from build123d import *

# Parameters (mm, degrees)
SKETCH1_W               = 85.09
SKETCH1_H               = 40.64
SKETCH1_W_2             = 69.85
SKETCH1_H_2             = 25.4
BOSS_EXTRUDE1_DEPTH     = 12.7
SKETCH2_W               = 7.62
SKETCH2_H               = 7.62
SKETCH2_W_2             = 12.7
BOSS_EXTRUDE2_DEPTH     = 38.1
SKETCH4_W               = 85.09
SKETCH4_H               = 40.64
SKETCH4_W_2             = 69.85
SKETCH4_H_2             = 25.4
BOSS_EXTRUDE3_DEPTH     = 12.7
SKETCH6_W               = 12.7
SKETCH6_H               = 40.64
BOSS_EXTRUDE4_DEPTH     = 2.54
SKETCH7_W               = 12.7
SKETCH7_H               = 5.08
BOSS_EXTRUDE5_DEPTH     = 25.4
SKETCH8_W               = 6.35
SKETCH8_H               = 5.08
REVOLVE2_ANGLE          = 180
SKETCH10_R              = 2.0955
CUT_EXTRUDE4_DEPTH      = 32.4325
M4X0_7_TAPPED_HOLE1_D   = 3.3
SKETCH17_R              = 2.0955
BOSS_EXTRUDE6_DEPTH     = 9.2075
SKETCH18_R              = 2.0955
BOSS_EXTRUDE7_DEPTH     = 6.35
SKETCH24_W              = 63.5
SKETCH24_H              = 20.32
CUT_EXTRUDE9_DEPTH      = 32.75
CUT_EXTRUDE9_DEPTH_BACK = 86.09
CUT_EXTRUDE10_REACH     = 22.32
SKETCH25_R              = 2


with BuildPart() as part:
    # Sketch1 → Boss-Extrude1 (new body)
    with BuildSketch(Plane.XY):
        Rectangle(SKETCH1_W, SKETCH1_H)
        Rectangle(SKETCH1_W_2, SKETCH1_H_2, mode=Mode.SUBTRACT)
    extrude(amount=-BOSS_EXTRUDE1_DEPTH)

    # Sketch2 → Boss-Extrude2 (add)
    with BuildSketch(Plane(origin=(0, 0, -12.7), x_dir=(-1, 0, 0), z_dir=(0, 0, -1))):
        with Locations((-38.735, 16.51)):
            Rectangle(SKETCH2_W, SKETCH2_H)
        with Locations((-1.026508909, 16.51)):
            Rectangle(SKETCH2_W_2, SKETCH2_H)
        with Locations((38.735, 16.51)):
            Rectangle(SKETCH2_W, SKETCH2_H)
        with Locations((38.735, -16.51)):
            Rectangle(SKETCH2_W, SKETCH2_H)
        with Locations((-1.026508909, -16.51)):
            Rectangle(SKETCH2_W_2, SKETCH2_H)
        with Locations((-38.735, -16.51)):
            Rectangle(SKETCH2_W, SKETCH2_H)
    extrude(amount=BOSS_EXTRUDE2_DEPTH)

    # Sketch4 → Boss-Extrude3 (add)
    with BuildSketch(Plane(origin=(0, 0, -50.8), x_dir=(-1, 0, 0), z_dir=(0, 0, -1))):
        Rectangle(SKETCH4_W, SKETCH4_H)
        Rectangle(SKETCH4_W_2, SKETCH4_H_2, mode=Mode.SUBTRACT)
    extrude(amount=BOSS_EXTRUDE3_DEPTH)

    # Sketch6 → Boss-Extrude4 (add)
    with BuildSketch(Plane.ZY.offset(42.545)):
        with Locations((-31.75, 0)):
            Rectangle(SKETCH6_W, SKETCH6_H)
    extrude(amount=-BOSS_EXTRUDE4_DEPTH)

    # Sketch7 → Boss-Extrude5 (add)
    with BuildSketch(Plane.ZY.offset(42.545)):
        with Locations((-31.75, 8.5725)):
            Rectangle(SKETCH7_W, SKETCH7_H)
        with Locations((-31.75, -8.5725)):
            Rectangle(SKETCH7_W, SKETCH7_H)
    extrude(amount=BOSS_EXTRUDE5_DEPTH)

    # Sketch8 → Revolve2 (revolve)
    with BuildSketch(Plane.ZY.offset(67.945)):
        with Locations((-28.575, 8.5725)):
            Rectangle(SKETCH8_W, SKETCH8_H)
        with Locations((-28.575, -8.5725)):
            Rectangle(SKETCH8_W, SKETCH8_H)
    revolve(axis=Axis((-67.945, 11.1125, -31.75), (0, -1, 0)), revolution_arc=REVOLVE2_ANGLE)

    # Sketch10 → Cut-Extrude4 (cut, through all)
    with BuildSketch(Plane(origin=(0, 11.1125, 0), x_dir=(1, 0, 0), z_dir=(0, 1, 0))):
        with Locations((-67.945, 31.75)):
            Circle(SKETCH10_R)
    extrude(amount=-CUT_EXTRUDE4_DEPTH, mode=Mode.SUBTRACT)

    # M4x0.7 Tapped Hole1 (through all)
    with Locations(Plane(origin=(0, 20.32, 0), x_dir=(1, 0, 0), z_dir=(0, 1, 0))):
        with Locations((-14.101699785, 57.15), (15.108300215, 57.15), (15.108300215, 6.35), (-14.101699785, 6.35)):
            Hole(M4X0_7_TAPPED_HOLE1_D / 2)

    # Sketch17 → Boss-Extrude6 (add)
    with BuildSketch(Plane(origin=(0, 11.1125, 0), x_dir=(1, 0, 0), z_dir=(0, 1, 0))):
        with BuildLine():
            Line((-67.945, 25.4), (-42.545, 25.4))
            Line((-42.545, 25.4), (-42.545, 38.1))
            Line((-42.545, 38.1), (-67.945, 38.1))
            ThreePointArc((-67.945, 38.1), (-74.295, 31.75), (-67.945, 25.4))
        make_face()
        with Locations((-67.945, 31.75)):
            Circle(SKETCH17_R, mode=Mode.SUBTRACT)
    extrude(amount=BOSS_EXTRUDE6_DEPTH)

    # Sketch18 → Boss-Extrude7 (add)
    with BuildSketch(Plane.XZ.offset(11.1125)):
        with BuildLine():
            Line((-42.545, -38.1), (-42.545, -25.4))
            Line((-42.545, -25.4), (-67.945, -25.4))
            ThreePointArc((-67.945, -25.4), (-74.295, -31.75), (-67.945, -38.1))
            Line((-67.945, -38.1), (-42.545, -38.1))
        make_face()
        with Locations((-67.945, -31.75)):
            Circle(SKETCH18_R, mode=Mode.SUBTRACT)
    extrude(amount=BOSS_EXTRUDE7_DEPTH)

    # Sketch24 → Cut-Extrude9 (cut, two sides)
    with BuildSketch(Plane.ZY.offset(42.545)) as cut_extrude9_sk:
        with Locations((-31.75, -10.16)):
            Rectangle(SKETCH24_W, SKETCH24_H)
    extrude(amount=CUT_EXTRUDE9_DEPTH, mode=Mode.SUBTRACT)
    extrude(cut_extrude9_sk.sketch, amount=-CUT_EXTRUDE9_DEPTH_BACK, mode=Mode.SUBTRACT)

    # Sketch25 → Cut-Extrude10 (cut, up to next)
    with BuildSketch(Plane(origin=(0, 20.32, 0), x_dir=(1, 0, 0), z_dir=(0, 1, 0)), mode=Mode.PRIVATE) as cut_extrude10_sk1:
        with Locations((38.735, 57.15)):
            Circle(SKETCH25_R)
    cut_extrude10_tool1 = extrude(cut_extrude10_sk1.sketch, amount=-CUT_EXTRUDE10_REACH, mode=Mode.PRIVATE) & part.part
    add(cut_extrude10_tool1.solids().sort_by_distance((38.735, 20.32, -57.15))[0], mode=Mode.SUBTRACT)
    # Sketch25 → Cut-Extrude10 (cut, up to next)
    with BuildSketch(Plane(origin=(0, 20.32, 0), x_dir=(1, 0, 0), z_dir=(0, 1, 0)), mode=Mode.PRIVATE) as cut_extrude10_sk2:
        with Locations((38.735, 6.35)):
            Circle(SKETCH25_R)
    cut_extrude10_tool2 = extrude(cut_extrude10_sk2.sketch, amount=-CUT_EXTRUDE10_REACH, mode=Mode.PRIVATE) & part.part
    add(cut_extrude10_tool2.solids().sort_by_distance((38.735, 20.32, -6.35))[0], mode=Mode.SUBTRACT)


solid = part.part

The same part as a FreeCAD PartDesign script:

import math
import FreeCAD as App
import Part
import Sketcher
from FreeCAD import Vector
Q = App.Units.Quantity


def add_polygon(sketch, points):
    """Adds a closed chain of lines whose ends are joined by coincident constraints."""
    first, n = sketch.GeometryCount, len(points)
    for a, b in zip(points, points[1:] + points[:1]):
        sketch.addGeometry(Part.LineSegment(App.Vector(*a, 0), App.Vector(*b, 0)), False)
    for i in range(n):
        sketch.addConstraint(Sketcher.Constraint("Coincident", first + i, 2, first + (i + 1) % n, 1))

doc = App.newDocument("Part")
body = doc.addObject("PartDesign::Body", "Body")

# Sketch on XY plane
sketch1 = doc.addObject("Sketcher::SketchObject", "Sketch")
body.addObject(sketch1)
sketch1.AttachmentSupport = (doc.XY_Plane, [""])
sketch1.MapMode = "FlatFace"
add_polygon(sketch1, [(-42.545, 20.32), (-42.545, -20.32), (42.545, -20.32), (42.545, 20.32)])  # lines 0-3
add_polygon(sketch1, [(34.925, -12.7), (-34.925, -12.7), (-34.925, 12.7), (34.925, 12.7)])  # lines 4-7
sketch1.addConstraint([
    Sketcher.Constraint("Vertical", 0),
    Sketcher.Constraint("Horizontal", 1),
    Sketcher.Constraint("Vertical", 2),
    Sketcher.Constraint("Horizontal", 3),
    Sketcher.Constraint("Horizontal", 4),
    Sketcher.Constraint("Vertical", 5),
    Sketcher.Constraint("Horizontal", 6),
    Sketcher.Constraint("Vertical", 7),
    Sketcher.Constraint("Symmetric", 0, 2, 2, 2, -1, 1),
    Sketcher.Constraint("Symmetric", 4, 2, 6, 2, -1, 1),
    Sketcher.Constraint("DistanceY", 5, 1, 5, 2, Q("1 in")),
    Sketcher.Constraint("DistanceY", 0, 2, 0, 1, Q("1.6 in")),
    Sketcher.Constraint("DistanceX", 1, 1, 1, 2, Q("3.35 in")),
    Sketcher.Constraint("DistanceX", 4, 2, 4, 1, Q("2.75 in")),
])
pad1 = doc.addObject("PartDesign::Pad", "Pad")
body.addObject(pad1)
pad1.Profile = sketch1
pad1.Length = Q("0.5 in")
pad1.Reversed = True

# Sketch on XY plane
sketch2 = doc.addObject("Sketcher::SketchObject", "Sketch001")
body.addObject(sketch2)
sketch2.AttachmentSupport = (doc.XY_Plane, [""])
sketch2.MapMode = "FlatFace"
sketch2.AttachmentOffset = App.Placement(Vector(0, 0, -0.5 * 25.4), App.Rotation())
add_polygon(sketch2, [(42.545, 20.32), (42.545, 12.7), (34.925, 12.7), (34.925, 20.32)])  # lines 0-3
add_polygon(sketch2, [(7.376509, 20.32), (7.376509, 12.7), (-5.323491, 12.7), (-5.323491, 20.32)])  # lines 4-7
add_polygon(sketch2, [(-34.925, 20.32), (-34.925, 12.7), (-42.545, 12.7), (-42.545, 20.32)])  # lines 8-11
add_polygon(sketch2, [(-34.925, -12.7), (-34.925, -20.32), (-42.545, -20.32), (-42.545, -12.7)])  # lines 12-15
add_polygon(sketch2, [(7.376509, -12.7), (7.376509, -20.32), (-5.323491, -20.32), (-5.323491, -12.7)])  # lines 16-19
add_polygon(sketch2, [(42.545, -12.7), (42.545, -20.32), (34.925, -20.32), (34.925, -12.7)])  # lines 20-23
sketch2.addConstraint([
    Sketcher.Constraint("Vertical", 0),
    Sketcher.Constraint("Horizontal", 1),
    Sketcher.Constraint("Vertical", 2),
    Sketcher.Constraint("Horizontal", 3),
    Sketcher.Constraint("Vertical", 4),
    Sketcher.Constraint("Horizontal", 5),
    Sketcher.Constraint("Vertical", 6),
    Sketcher.Constraint("Horizontal", 7),
    Sketcher.Constraint("Vertical", 8),
    Sketcher.Constraint("Horizontal", 9),
    Sketcher.Constraint("Vertical", 10),
    Sketcher.Constraint("Horizontal", 11),
    Sketcher.Constraint("Vertical", 12),
    Sketcher.Constraint("Horizontal", 13),
    Sketcher.Constraint("Vertical", 14),
    Sketcher.Constraint("Horizontal", 15),
    Sketcher.Constraint("Vertical", 16),
    Sketcher.Constraint("Horizontal", 17),
    Sketcher.Constraint("Vertical", 18),
    Sketcher.Constraint("Horizontal", 19),
    Sketcher.Constraint("Vertical", 20),
    Sketcher.Constraint("Horizontal", 21),
    Sketcher.Constraint("Vertical", 22),
    Sketcher.Constraint("Horizontal", 23),
    Sketcher.Constraint("Symmetric", 2, 2, 12, 2, -1, 1),
    Sketcher.Constraint("Symmetric", 0, 2, 14, 2, -1, 1),
    Sketcher.Constraint("Symmetric", 10, 2, 20, 2, -1, 1),
    Sketcher.Constraint("Symmetric", 8, 2, 22, 2, -1, 1),
    Sketcher.Constraint("Symmetric", 1, 2, 8, 2, -2),
    Sketcher.Constraint("Symmetric", 3, 2, 10, 2, -2),
    Sketcher.Constraint("Symmetric", 7, 2, 16, 2, -1),
    Sketcher.Constraint("Symmetric", 5, 2, 18, 2, -1),
    Sketcher.Constraint("Horizontal", 1, 2, 4, 2),
    Sketcher.Constraint("Horizontal", 3, 2, 6, 2),
    Sketcher.Constraint("Equal", 23, 0),
    Sketcher.Constraint("DistanceX", 1, 2, 1, 1, Q("0.3 in")),
    Sketcher.Constraint("DistanceX", 5, 2, 5, 1, Q("0.5 in")),
    Sketcher.Constraint("DistanceY", 14, 2, 9, 2, Q("1 in")),
    Sketcher.Constraint("DistanceX", 8, 2, 1, 2, Q("2.75 in")),
    Sketcher.Constraint("DistanceX", -1, 1, 4, 2, Q("7.376509 mm")),
])
pad2 = doc.addObject("PartDesign::Pad", "Pad001")
body.addObject(pad2)
pad2.Profile = sketch2
pad2.Length = Q("1.5 in")
pad2.Reversed = True

# Sketch on XY plane
sketch3 = doc.addObject("Sketcher::SketchObject", "Sketch002")
body.addObject(sketch3)
sketch3.AttachmentSupport = (doc.XY_Plane, [""])
sketch3.MapMode = "FlatFace"
sketch3.AttachmentOffset = App.Placement(Vector(0, 0, -2 * 25.4), App.Rotation())
add_polygon(sketch3, [(42.545, 20.32), (42.545, -20.32), (-42.545, -20.32), (-42.545, 20.32)])  # lines 0-3
add_polygon(sketch3, [(-34.925, -12.7), (34.925, -12.7), (34.925, 12.7), (-34.925, 12.7)])  # lines 4-7
sketch3.addConstraint([
    Sketcher.Constraint("Vertical", 0),
    Sketcher.Constraint("Horizontal", 1),
    Sketcher.Constraint("Vertical", 2),
    Sketcher.Constraint("Horizontal", 3),
    Sketcher.Constraint("Horizontal", 4),
    Sketcher.Constraint("Vertical", 5),
    Sketcher.Constraint("Horizontal", 6),
    Sketcher.Constraint("Vertical", 7),
    Sketcher.Constraint("Symmetric", 0, 2, 2, 2, -1, 1),
    Sketcher.Constraint("Symmetric", 4, 2, 6, 2, -1, 1),
    Sketcher.Constraint("DistanceY", 5, 1, 5, 2, Q("1 in")),
    Sketcher.Constraint("DistanceY", 0, 2, 0, 1, Q("1.6 in")),
    Sketcher.Constraint("DistanceX", 1, 2, 1, 1, Q("3.35 in")),
    Sketcher.Constraint("DistanceX", 4, 1, 4, 2, Q("2.75 in")),
])
pad3 = doc.addObject("PartDesign::Pad", "Pad002")
body.addObject(pad3)
pad3.Profile = sketch3
pad3.Length = Q("0.5 in")
pad3.Reversed = True

# Sketch on YZ plane
sketch4 = doc.addObject("Sketcher::SketchObject", "Sketch003")
body.addObject(sketch4)
sketch4.AttachmentSupport = (doc.YZ_Plane, [""])
sketch4.MapMode = "FlatFace"
sketch4.AttachmentOffset = App.Placement(Vector(0, 0, -1.675 * 25.4), App.Rotation())
add_polygon(sketch4, [(20.32, -38.1), (-20.32, -38.1), (-20.32, -25.4), (20.32, -25.4)])  # lines 0-3
sketch4.addConstraint([
    Sketcher.Constraint("Horizontal", 0),
    Sketcher.Constraint("Vertical", 1),
    Sketcher.Constraint("Horizontal", 2),
    Sketcher.Constraint("Vertical", 3),
    Sketcher.Constraint("DistanceX", 0, 2, 0, 1, Q("1.6 in")),
    Sketcher.Constraint("DistanceY", 1, 1, 1, 2, Q("0.5 in")),
    Sketcher.Constraint("DistanceY", 1, 2, -1, 1, Q("1 in")),
    Sketcher.Constraint("DistanceX", 0, 2, -1, 1, Q("0.8 in")),
])
pad4 = doc.addObject("PartDesign::Pad", "Pad003")
body.addObject(pad4)
pad4.Profile = sketch4
pad4.Length = Q("0.1 in")

# Sketch on YZ plane
sketch5 = doc.addObject("Sketcher::SketchObject", "Sketch004")
body.addObject(sketch5)
sketch5.AttachmentSupport = (doc.YZ_Plane, [""])
sketch5.MapMode = "FlatFace"
sketch5.AttachmentOffset = App.Placement(Vector(0, 0, -1.675 * 25.4), App.Rotation())
add_polygon(sketch5, [(11.1125, -38.1), (6.0325, -38.1), (6.0325, -25.4), (11.1125, -25.4)])  # lines 0-3
add_polygon(sketch5, [(-6.0325, -38.1), (-11.1125, -38.1), (-11.1125, -25.4), (-6.0325, -25.4)])  # lines 4-7
sketch5.addConstraint([
    Sketcher.Constraint("Horizontal", 0),
    Sketcher.Constraint("Vertical", 1),
    Sketcher.Constraint("Horizontal", 2),
    Sketcher.Constraint("Vertical", 3),
    Sketcher.Constraint("Horizontal", 4),
    Sketcher.Constraint("Vertical", 5),
    Sketcher.Constraint("Horizontal", 6),
    Sketcher.Constraint("Vertical", 7),
    Sketcher.Constraint("Symmetric", 3, 2, 4, 2, -2),
    Sketcher.Constraint("Symmetric", 1, 2, 6, 2, -2),
    Sketcher.Constraint("DistanceX", 0, 2, 0, 1, Q("0.2 in")),
    Sketcher.Constraint("DistanceY", 1, 1, 1, 2, Q("0.5 in")),
    Sketcher.Constraint("DistanceY", 1, 2, -1, 1, Q("1 in")),
    Sketcher.Constraint("DistanceX", -1, 1, 2, 2, Q("0.4375 in")),
])
pad5 = doc.addObject("PartDesign::Pad", "Pad004")
body.addObject(pad5)
pad5.Profile = sketch5
pad5.Length = Q("1 in")
pad5.Reversed = True

# Sketch on YZ plane
sketch6 = doc.addObject("Sketcher::SketchObject", "Sketch005")
body.addObject(sketch6)
sketch6.AttachmentSupport = (doc.YZ_Plane, [""])
sketch6.MapMode = "FlatFace"
sketch6.AttachmentOffset = App.Placement(Vector(0, 0, -2.675 * 25.4), App.Rotation())
add_polygon(sketch6, [(11.1125, -31.75), (6.0325, -31.75), (6.0325, -25.4), (11.1125, -25.4)])  # lines 0-3
add_polygon(sketch6, [(-6.0325, -31.75), (-11.1125, -31.75), (-11.1125, -25.4), (-6.0325, -25.4)])  # lines 4-7
sketch6.addGeometry(Part.LineSegment(Vector(11.1125, -31.75, 0), Vector(-11.1125, -31.75, 0)), True)  # axis
sketch6.addConstraint([
    Sketcher.Constraint("Horizontal", 0),
    Sketcher.Constraint("Vertical", 1),
    Sketcher.Constraint("Horizontal", 2),
    Sketcher.Constraint("Vertical", 3),
    Sketcher.Constraint("Horizontal", 4),
    Sketcher.Constraint("Vertical", 5),
    Sketcher.Constraint("Horizontal", 6),
    Sketcher.Constraint("Vertical", 7),
    Sketcher.Constraint("Horizontal", 8),
    Sketcher.Constraint("Coincident", 8, 1, 3, 2),
    Sketcher.Constraint("Coincident", 8, 2, 4, 2),
    Sketcher.Constraint("Symmetric", 2, 2, 5, 2, -2),
    Sketcher.Constraint("Equal", 2, 4),
    Sketcher.Constraint("DistanceX", 0, 2, 0, 1, Q("0.2 in")),
    Sketcher.Constraint("DistanceY", 1, 2, -1, 1, Q("1 in")),
    Sketcher.Constraint("DistanceY", 1, 1, 1, 2, Q("0.25 in")),
    Sketcher.Constraint("DistanceX", 8, 2, 8, 1, Q("0.875 in")),
])
revolution = doc.addObject("PartDesign::Revolution", "Revolution")
body.addObject(revolution)
revolution.Profile = sketch6
revolution.ReferenceAxis = (sketch6, ["Axis0"])
revolution.Angle = 180

# Sketch on XZ plane
sketch7 = doc.addObject("Sketcher::SketchObject", "Sketch006")
body.addObject(sketch7)
sketch7.AttachmentSupport = (doc.XZ_Plane, [""])
sketch7.MapMode = "FlatFace"
sketch7.AttachmentOffset = App.Placement(Vector(0, 0, -0.4375 * 25.4), App.Rotation())
sketch7.addGeometry(Part.Circle(Vector(-67.945, -31.75, 0), Vector(0, 0, 1), 2.0955), False)
sketch7.addConstraint([
    Sketcher.Constraint("Diameter", 0, Q("0.165 in")),
    Sketcher.Constraint("DistanceY", 0, 3, -1, 1, Q("1.25 in")),
    Sketcher.Constraint("DistanceX", 0, 3, -1, 1, Q("2.675 in")),
])
pocket1 = doc.addObject("PartDesign::Pocket", "Pocket")
body.addObject(pocket1)
pocket1.Profile = sketch7
pocket1.Type = "ThroughAll"
pocket1.Reversed = True

# Sketch on XZ plane
sketch8 = doc.addObject("Sketcher::SketchObject", "Sketch007")
body.addObject(sketch8)
sketch8.AttachmentSupport = (doc.XZ_Plane, [""])
sketch8.MapMode = "FlatFace"
sketch8.AttachmentOffset = App.Placement(Vector(0, 0, -0.8 * 25.4), App.Rotation())
sketch8.addGeometry([
    Part.Circle(Vector(-14.1017, -57.15, 0), Vector(0, 0, 1), 1.65),
    Part.Circle(Vector(15.1083, -57.15, 0), Vector(0, 0, 1), 1.65),
    Part.Circle(Vector(15.1083, -6.35, 0), Vector(0, 0, 1), 1.65),
    Part.Circle(Vector(-14.1017, -6.35, 0), Vector(0, 0, 1), 1.65),
], False)
sketch8.addConstraint([
    Sketcher.Constraint("Equal", 0, 1),
    Sketcher.Constraint("Equal", 1, 2),
    Sketcher.Constraint("Equal", 2, 3),
    Sketcher.Constraint("Horizontal", 0, 3, 1, 3),
    Sketcher.Constraint("Horizontal", 2, 3, 3, 3),
    Sketcher.Constraint("Vertical", 1, 3, 2, 3),
    Sketcher.Constraint("Vertical", 0, 3, 3, 3),
    Sketcher.Constraint("DistanceY", 1, 3, 2, 3, Q("2 in")),
    Sketcher.Constraint("Diameter", 0, Q("3.3 mm")),
    Sketcher.Constraint("DistanceY", 0, 3, -1, 1, Q("2.25 in")),
    Sketcher.Constraint("DistanceX", 0, 3, 1, 3, Q("1.15 in")),
    Sketcher.Constraint("DistanceX", 0, 3, -1, 1, Q("14.1017 mm")),
])
doc.recompute()
hole = doc.addObject("PartDesign::Hole", "Hole")
body.addObject(hole)
hole.Profile = sketch8
hole.ThreadType = "None"
hole.Diameter = 3.3
hole.DepthType = "ThroughAll"
hole.Reversed = True

# Sketch on XZ plane
sketch9 = doc.addObject("Sketcher::SketchObject", "Sketch008")
body.addObject(sketch9)
sketch9.AttachmentSupport = (doc.XZ_Plane, [""])
sketch9.MapMode = "FlatFace"
sketch9.AttachmentOffset = App.Placement(Vector(0, 0, -0.4375 * 25.4), App.Rotation())
sketch9.addGeometry([
    Part.LineSegment(Vector(-67.945, -25.4, 0), Vector(-42.545, -25.4, 0)),  # 0
    Part.LineSegment(Vector(-42.545, -25.4, 0), Vector(-42.545, -38.1, 0)),  # 1
    Part.LineSegment(Vector(-42.545, -38.1, 0), Vector(-67.945, -38.1, 0)),  # 2
    Part.ArcOfCircle(Part.Circle(Vector(-67.945, -31.75, 0), Vector(0, 0, 1), 6.35), math.radians(90), math.radians(270)),  # 3
    Part.Circle(Vector(-67.945, -31.75, 0), Vector(0, 0, 1), 2.0955),  # 4
], False)
sketch9.addConstraint([
    Sketcher.Constraint("Coincident", 0, 2, 1, 1),
    Sketcher.Constraint("Coincident", 1, 2, 2, 1),
    Sketcher.Constraint("Tangent", 2, 2, 3, 2),
    Sketcher.Constraint("Tangent", 3, 1, 0, 1),
    Sketcher.Constraint("Horizontal", 0),
    Sketcher.Constraint("Vertical", 1),
    Sketcher.Constraint("Horizontal", 2),
    Sketcher.Constraint("Coincident", 4, 3, 3, 3),
    Sketcher.Constraint("DistanceX", 0, 1, 0, 2, Q("1 in")),
    Sketcher.Constraint("Radius", 3, Q("0.25 in")),
    Sketcher.Constraint("Diameter", 4, Q("0.165 in")),
    Sketcher.Constraint("DistanceY", 0, 2, -1, 1, Q("1 in")),
    Sketcher.Constraint("DistanceX", 3, 3, -1, 1, Q("2.675 in")),
])
pad6 = doc.addObject("PartDesign::Pad", "Pad005")
body.addObject(pad6)
pad6.Profile = sketch9
pad6.Length = Q("0.3625 in")
pad6.Reversed = True

# Sketch on XZ plane
sketch10 = doc.addObject("Sketcher::SketchObject", "Sketch009")
body.addObject(sketch10)
sketch10.AttachmentSupport = (doc.XZ_Plane, [""])
sketch10.MapMode = "FlatFace"
sketch10.AttachmentOffset = App.Placement(Vector(0, 0, 0.4375 * 25.4), App.Rotation())
sketch10.addGeometry([
    Part.LineSegment(Vector(-42.545, -38.1, 0), Vector(-42.545, -25.4, 0)),  # 0
    Part.LineSegment(Vector(-42.545, -25.4, 0), Vector(-67.945, -25.4, 0)),  # 1
    Part.ArcOfCircle(Part.Circle(Vector(-67.945, -31.75, 0), Vector(0, 0, 1), 6.35), math.radians(90), math.radians(270)),  # 2
    Part.LineSegment(Vector(-67.945, -38.1, 0), Vector(-42.545, -38.1, 0)),  # 3
    Part.Circle(Vector(-67.945, -31.75, 0), Vector(0, 0, 1), 2.0955),  # 4
], False)
sketch10.addConstraint([
    Sketcher.Constraint("Coincident", 0, 2, 1, 1),
    Sketcher.Constraint("Tangent", 1, 2, 2, 1),
    Sketcher.Constraint("Tangent", 2, 2, 3, 1),
    Sketcher.Constraint("Coincident", 3, 2, 0, 1),
    Sketcher.Constraint("Vertical", 0),
    Sketcher.Constraint("Horizontal", 1),
    Sketcher.Constraint("Horizontal", 3),
    Sketcher.Constraint("Coincident", 4, 3, 2, 3),
    Sketcher.Constraint("DistanceX", 1, 2, 1, 1, Q("1 in")),
    Sketcher.Constraint("Radius", 2, Q("0.25 in")),
    Sketcher.Constraint("Diameter", 4, Q("0.165 in")),
    Sketcher.Constraint("DistanceY", 0, 2, -1, 1, Q("1 in")),
    Sketcher.Constraint("DistanceX", 2, 3, -1, 1, Q("2.675 in")),
])
pad7 = doc.addObject("PartDesign::Pad", "Pad006")
body.addObject(pad7)
pad7.Profile = sketch10
pad7.Length = Q("0.25 in")

# Sketch on YZ plane
sketch11 = doc.addObject("Sketcher::SketchObject", "Sketch010")
body.addObject(sketch11)
sketch11.AttachmentSupport = (doc.YZ_Plane, [""])
sketch11.MapMode = "FlatFace"
sketch11.AttachmentOffset = App.Placement(Vector(0, 0, -1.675 * 25.4), App.Rotation())
add_polygon(sketch11, [(0, -63.5), (-20.32, -63.5), (-20.32, 0), (0, 0)])  # lines 0-3
sketch11.addConstraint([
    Sketcher.Constraint("Horizontal", 0),
    Sketcher.Constraint("Vertical", 1),
    Sketcher.Constraint("Horizontal", 2),
    Sketcher.Constraint("Vertical", 3),
    Sketcher.Constraint("Coincident", 2, 2, -1, 1),
    Sketcher.Constraint("DistanceX", 0, 2, 0, 1, Q("0.8 in")),
    Sketcher.Constraint("DistanceY", 1, 1, 1, 2, Q("2.5 in")),
])
pocket2 = doc.addObject("PartDesign::Pocket", "Pocket001")
body.addObject(pocket2)
pocket2.Profile = sketch11
pocket2.Type = "ThroughAll"
pocket2.Midplane = True

# Sketch on XZ plane
sketch12 = doc.addObject("Sketcher::SketchObject", "Sketch011")
body.addObject(sketch12)
sketch12.AttachmentSupport = (doc.XZ_Plane, [""])
sketch12.MapMode = "FlatFace"
sketch12.AttachmentOffset = App.Placement(Vector(0, 0, -0.8 * 25.4), App.Rotation())
sketch12.addGeometry(Part.Circle(Vector(38.735, -57.15, 0), Vector(0, 0, 1), 2), False)
sketch12.addConstraint([
    Sketcher.Constraint("Diameter", 0, Q("4 mm")),
    Sketcher.Constraint("DistanceY", 0, 3, -1, 1, Q("2.25 in")),
    Sketcher.Constraint("DistanceX", -1, 1, 0, 3, Q("1.525 in")),
])
pocket3 = doc.addObject("PartDesign::Pocket", "Pocket002")
body.addObject(pocket3)
pocket3.Profile = sketch12
pocket3.Type = "UpToFirst"
pocket3.Reversed = True

# Sketch on XZ plane
sketch13 = doc.addObject("Sketcher::SketchObject", "Sketch012")
body.addObject(sketch13)
sketch13.AttachmentSupport = (doc.XZ_Plane, [""])
sketch13.MapMode = "FlatFace"
sketch13.AttachmentOffset = App.Placement(Vector(0, 0, -0.8 * 25.4), App.Rotation())
sketch13.addGeometry(Part.Circle(Vector(38.735, -6.35, 0), Vector(0, 0, 1), 2), False)
sketch13.addConstraint([
    Sketcher.Constraint("Diameter", 0, Q("4 mm")),
    Sketcher.Constraint("DistanceY", 0, 3, -1, 1, Q("0.25 in")),
    Sketcher.Constraint("DistanceX", -1, 1, 0, 3, Q("1.525 in")),
])
pocket4 = doc.addObject("PartDesign::Pocket", "Pocket003")
body.addObject(pocket4)
pocket4.Profile = sketch13
pocket4.Type = "UpToFirst"
pocket4.Reversed = True

doc.recompute()
